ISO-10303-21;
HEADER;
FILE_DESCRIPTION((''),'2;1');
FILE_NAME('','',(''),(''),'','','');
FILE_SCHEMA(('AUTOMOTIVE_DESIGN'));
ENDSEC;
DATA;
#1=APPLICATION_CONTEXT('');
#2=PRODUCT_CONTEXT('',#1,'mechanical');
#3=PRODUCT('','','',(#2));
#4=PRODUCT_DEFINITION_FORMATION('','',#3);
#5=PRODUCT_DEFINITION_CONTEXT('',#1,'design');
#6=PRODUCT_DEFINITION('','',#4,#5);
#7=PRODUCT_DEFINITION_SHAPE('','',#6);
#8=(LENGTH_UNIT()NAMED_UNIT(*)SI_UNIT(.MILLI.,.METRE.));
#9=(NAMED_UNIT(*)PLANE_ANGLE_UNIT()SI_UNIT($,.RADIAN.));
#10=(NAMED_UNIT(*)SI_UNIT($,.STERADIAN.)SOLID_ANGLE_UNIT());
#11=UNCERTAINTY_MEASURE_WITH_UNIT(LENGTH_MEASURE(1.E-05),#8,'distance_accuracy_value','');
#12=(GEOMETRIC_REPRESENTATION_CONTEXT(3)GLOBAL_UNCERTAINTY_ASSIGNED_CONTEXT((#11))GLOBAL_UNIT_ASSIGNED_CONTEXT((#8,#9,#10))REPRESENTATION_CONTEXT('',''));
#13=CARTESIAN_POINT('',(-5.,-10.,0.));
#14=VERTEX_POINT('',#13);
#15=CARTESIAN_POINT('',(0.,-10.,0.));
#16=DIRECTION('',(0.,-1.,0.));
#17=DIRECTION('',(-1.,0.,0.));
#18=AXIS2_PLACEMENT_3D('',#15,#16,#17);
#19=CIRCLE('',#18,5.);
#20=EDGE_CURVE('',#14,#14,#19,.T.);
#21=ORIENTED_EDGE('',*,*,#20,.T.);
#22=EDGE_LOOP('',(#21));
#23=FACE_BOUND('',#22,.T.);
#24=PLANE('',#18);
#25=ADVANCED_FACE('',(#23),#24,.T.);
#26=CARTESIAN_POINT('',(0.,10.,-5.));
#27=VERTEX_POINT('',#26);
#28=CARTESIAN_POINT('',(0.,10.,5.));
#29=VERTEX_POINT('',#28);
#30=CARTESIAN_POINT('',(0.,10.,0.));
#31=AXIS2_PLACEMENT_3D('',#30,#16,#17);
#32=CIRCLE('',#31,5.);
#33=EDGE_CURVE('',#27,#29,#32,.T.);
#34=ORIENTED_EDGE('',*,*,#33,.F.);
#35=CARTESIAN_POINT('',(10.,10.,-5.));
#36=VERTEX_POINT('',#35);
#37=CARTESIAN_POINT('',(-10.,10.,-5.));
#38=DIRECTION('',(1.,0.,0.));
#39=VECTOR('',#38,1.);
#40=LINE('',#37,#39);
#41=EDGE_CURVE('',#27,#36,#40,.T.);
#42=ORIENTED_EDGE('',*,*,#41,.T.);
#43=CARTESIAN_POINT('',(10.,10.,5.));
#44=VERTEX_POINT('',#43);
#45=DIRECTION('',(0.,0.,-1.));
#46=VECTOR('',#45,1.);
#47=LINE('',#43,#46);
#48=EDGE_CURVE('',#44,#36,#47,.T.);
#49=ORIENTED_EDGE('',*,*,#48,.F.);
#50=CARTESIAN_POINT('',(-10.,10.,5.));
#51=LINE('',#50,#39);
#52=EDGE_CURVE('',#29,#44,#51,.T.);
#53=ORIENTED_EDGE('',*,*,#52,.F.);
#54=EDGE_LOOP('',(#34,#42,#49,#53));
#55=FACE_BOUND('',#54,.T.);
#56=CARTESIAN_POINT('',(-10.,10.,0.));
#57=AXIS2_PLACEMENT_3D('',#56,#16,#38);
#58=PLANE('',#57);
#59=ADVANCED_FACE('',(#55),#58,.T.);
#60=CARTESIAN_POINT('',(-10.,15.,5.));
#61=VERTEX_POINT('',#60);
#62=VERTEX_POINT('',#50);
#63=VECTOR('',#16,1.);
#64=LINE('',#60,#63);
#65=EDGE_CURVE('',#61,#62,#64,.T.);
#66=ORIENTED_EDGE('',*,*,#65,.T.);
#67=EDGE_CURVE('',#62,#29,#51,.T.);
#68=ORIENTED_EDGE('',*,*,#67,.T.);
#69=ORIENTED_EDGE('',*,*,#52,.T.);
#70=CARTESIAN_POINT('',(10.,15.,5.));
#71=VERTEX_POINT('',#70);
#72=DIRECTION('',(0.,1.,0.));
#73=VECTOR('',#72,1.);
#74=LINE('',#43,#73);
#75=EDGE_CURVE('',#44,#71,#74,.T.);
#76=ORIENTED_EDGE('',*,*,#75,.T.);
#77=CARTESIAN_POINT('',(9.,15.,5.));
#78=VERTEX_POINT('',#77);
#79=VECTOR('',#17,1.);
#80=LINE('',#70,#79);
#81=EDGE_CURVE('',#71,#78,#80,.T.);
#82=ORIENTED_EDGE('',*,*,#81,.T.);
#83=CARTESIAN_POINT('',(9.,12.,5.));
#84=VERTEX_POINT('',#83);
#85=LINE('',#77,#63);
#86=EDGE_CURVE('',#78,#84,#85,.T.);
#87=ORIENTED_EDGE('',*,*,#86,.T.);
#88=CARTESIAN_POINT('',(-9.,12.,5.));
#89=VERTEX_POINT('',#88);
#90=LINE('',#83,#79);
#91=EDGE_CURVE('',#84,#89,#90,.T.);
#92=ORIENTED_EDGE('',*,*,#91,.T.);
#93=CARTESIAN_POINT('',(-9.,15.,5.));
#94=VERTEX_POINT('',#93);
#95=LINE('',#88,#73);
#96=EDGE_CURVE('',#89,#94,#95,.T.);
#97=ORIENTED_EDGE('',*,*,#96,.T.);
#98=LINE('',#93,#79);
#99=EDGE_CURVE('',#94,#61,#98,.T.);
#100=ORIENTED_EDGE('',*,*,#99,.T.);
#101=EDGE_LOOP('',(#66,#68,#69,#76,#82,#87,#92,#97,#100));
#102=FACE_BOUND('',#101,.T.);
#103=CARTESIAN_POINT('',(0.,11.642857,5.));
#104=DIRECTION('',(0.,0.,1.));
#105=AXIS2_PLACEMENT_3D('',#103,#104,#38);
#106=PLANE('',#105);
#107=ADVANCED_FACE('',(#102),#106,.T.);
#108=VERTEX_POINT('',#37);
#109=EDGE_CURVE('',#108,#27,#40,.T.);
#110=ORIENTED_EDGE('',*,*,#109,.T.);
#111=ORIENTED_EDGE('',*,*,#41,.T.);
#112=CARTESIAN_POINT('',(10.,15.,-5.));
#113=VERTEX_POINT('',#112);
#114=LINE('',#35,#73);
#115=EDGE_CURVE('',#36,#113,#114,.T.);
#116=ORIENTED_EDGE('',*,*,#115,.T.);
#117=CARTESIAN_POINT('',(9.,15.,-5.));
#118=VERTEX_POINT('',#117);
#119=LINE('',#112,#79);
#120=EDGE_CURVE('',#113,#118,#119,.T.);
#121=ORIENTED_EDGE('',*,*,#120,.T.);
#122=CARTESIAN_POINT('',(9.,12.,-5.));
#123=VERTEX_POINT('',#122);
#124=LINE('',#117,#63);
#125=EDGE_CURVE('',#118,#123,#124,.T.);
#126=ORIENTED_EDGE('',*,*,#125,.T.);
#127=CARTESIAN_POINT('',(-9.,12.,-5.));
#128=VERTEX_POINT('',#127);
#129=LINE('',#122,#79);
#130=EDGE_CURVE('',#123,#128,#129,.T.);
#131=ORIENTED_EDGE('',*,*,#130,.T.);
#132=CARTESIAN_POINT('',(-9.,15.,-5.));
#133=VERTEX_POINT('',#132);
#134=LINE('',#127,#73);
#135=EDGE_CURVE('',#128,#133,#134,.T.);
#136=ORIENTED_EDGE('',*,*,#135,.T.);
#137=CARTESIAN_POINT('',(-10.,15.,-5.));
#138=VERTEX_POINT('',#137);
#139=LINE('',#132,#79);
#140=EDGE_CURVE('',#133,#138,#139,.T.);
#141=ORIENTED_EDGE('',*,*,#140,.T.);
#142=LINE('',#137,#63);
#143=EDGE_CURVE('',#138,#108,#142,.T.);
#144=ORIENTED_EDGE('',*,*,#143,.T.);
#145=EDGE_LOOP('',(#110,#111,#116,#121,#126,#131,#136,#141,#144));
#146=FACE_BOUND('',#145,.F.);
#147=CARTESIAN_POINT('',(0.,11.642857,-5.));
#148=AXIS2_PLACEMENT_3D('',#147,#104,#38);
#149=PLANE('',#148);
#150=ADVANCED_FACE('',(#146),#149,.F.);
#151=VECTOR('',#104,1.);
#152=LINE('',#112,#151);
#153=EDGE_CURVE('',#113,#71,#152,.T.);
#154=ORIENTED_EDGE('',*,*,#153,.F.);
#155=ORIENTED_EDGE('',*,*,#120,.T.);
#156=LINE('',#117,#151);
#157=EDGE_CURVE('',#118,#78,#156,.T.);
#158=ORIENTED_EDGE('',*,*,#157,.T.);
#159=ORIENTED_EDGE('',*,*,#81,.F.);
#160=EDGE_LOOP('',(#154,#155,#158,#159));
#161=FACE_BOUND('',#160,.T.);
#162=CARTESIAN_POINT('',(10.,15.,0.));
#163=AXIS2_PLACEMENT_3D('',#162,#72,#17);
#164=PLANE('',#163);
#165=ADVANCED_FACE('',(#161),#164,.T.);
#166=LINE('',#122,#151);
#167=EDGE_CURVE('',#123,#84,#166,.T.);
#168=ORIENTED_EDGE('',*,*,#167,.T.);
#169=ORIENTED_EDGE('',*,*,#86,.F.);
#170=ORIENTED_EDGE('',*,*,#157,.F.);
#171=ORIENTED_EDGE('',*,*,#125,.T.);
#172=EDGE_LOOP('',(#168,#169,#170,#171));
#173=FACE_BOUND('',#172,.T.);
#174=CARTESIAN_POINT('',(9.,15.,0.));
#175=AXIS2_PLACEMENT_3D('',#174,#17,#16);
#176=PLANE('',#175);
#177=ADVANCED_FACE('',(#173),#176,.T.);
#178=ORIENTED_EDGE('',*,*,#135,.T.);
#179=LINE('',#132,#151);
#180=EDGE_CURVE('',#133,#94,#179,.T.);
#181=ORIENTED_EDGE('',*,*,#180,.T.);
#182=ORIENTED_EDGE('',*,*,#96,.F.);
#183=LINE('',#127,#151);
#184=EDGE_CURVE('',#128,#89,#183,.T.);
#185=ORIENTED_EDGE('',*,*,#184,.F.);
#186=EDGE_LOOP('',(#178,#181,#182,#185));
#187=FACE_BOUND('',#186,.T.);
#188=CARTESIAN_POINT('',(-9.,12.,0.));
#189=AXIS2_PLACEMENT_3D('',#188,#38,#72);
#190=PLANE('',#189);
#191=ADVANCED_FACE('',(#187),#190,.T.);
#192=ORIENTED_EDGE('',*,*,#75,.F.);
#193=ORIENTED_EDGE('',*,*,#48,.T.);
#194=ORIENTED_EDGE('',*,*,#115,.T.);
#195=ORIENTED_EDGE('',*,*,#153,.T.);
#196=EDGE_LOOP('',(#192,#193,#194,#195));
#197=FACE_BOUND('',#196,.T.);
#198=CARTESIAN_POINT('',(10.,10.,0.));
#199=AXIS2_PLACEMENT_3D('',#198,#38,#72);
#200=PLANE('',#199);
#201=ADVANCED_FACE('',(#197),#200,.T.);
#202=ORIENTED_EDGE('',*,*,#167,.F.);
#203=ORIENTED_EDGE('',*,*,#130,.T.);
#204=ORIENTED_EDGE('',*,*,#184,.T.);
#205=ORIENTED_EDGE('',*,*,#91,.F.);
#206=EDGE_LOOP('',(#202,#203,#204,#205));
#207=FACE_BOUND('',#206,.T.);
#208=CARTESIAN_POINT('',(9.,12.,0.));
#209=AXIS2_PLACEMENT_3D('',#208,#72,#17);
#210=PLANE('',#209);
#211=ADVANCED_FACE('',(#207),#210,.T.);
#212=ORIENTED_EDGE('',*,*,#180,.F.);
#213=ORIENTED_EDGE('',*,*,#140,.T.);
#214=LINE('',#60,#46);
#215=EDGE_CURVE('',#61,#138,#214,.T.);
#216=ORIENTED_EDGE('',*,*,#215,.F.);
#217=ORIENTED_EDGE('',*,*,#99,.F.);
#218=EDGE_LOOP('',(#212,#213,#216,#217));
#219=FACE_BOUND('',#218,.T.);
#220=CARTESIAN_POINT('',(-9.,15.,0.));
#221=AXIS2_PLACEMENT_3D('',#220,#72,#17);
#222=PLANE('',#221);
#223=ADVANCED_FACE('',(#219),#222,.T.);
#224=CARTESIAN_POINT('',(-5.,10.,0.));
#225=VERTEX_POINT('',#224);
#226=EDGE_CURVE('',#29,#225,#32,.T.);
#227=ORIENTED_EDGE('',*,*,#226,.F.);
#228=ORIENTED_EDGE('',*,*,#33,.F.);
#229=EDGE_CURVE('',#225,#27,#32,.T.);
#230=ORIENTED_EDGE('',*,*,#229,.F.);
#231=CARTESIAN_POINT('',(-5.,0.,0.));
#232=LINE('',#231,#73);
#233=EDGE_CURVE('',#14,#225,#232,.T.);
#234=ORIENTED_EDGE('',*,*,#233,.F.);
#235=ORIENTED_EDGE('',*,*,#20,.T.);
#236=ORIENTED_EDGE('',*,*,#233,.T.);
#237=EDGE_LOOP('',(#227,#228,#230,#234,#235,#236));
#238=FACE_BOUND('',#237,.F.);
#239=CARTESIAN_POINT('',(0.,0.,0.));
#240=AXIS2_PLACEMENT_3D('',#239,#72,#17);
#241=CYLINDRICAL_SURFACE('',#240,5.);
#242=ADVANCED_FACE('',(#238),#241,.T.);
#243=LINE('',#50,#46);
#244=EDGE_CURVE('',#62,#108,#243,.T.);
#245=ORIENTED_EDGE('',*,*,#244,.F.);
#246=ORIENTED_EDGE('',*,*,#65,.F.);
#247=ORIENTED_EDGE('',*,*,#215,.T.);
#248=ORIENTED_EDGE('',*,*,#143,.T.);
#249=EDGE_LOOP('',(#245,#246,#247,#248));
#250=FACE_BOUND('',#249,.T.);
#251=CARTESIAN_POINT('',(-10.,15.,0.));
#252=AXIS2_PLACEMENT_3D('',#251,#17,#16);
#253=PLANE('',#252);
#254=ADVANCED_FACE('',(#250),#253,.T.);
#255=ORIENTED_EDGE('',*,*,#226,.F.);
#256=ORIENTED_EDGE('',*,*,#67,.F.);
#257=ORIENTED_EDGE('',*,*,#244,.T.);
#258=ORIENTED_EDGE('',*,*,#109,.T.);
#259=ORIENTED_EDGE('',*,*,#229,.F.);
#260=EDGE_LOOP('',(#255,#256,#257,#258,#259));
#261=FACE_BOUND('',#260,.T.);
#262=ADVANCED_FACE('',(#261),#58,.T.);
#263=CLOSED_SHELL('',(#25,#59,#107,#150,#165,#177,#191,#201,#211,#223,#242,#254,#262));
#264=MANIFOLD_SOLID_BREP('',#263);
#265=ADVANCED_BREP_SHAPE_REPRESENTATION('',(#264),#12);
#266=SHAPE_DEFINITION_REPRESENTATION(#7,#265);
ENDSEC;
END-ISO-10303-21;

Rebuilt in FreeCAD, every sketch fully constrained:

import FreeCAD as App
import Part
import Sketcher
from FreeCAD import Vector

doc = App.newDocument("Part")
params = doc.addObject("Spreadsheet::Sheet", "Params")
for row, (alias, value) in enumerate([
    ("sketch1_width", "1 mm"),
    ("sketch1_width2", "18 mm"),
    ("sketch1_height", "5 mm"),
    ("sketch1_height2", "3 mm"),
    ("pad1_length", "10 mm"),
    ("sketch2_width", "5 mm"),
    ("sketch2_height", "20 mm"),
    ("revolution_angle", "360 deg"),
], start=1):
    params.set(f"A{row}", alias)
    params.set(f"B{row}", "=" + value)
    params.setAlias(f"B{row}", alias)

body = doc.addObject("PartDesign::Body", "Body")

# Sketch on XY plane
sketch1 = body.newObject("Sketcher::SketchObject", "Sketch")
sketch1.AttachmentSupport = (doc.getObject("XY_Plane"), [""])
sketch1.MapMode = "FlatFace"
sketch1.addGeometry([
    Part.LineSegment(Vector(10, 10, 0), Vector(10, 15, 0)),  # 0
    Part.LineSegment(Vector(10, 15, 0), Vector(9, 15, 0)),  # 1
    Part.LineSegment(Vector(9, 15, 0), Vector(9, 12, 0)),  # 2
    Part.LineSegment(Vector(9, 12, 0), Vector(-9, 12, 0)),  # 3
    Part.LineSegment(Vector(-9, 12, 0), Vector(-9, 15, 0)),  # 4
    Part.LineSegment(Vector(-9, 15, 0), Vector(-10, 15, 0)),  # 5
    Part.LineSegment(Vector(-10, 15, 0), Vector(-10, 10, 0)),  # 6
    Part.LineSegment(Vector(-10, 10, 0), Vector(10, 10, 0)),  # 7
], False)
sketch1.addConstraint([
    Sketcher.Constraint("Coincident", 0, 2, 1, 1),
    Sketcher.Constraint("Coincident", 1, 2, 2, 1),
    Sketcher.Constraint("Coincident", 2, 2, 3, 1),
    Sketcher.Constraint("Coincident", 3, 2, 4, 1),
    Sketcher.Constraint("Coincident", 4, 2, 5, 1),
    Sketcher.Constraint("Coincident", 5, 2, 6, 1),
    Sketcher.Constraint("Coincident", 6, 2, 7, 1),
    Sketcher.Constraint("Coincident", 7, 2, 0, 1),
    Sketcher.Constraint("Vertical", 0),
    Sketcher.Constraint("Horizontal", 1),
    Sketcher.Constraint("Vertical", 2),
    Sketcher.Constraint("Horizontal", 3),
    Sketcher.Constraint("Vertical", 4),
    Sketcher.Constraint("Horizontal", 5),
    Sketcher.Constraint("Vertical", 6),
    Sketcher.Constraint("Horizontal", 7),
    Sketcher.Constraint("Symmetric", 1, 2, 4, 2, -2),
    Sketcher.Constraint("Equal", 1, 5),
    Sketcher.Constraint("DistanceX", 1, 2, 1, 1, 1.0),
    Sketcher.Constraint("DistanceX", 3, 2, 3, 1, 18.0),
    Sketcher.Constraint("DistanceY", 0, 1, 0, 2, 5.0),
    Sketcher.Constraint("DistanceY", 2, 2, 2, 1, 3.0),
    Sketcher.Constraint("DistanceY", -1, 1, 0, 2, 15.0),
])
sketch1.setExpression("Constraints[18]", "Params.sketch1_width")
sketch1.setExpression("Constraints[19]", "Params.sketch1_width2")
sketch1.setExpression("Constraints[20]", "Params.sketch1_height")
sketch1.setExpression("Constraints[21]", "Params.sketch1_height2")
pad1 = body.newObject("PartDesign::Pad", "Pad")
pad1.Profile = sketch1
pad1.setExpression("Length", "Params.pad1_length")
pad1.Midplane = True

# Sketch on XY plane
sketch2 = body.newObject("Sketcher::SketchObject", "Sketch001")
sketch2.AttachmentSupport = (doc.getObject("XY_Plane"), [""])
sketch2.MapMode = "FlatFace"
sketch2.addGeometry([
    Part.LineSegment(Vector(-5, 10, 0), Vector(-5, -10, 0)),
    Part.LineSegment(Vector(-5, -10, 0), Vector(0, -10, 0)),
    Part.LineSegment(Vector(0, -10, 0), Vector(0, 10, 0)),
    Part.LineSegment(Vector(0, 10, 0), Vector(-5, 10, 0)),
], False)
sketch2.addConstraint([
    Sketcher.Constraint("Coincident", 0, 2, 1, 1),
    Sketcher.Constraint("Coincident", 1, 2, 2, 1),
    Sketcher.Constraint("Coincident", 2, 2, 3, 1),
    Sketcher.Constraint("Coincident", 3, 2, 0, 1),
    Sketcher.Constraint("Vertical", 0),
    Sketcher.Constraint("Horizontal", 1),
    Sketcher.Constraint("Vertical", 2),
    Sketcher.Constraint("Horizontal", 3),
    Sketcher.Constraint("Symmetric", 1, 2, 2, 2, -1, 1),
    Sketcher.Constraint("DistanceX", 1, 1, 1, 2, 5.0),
    Sketcher.Constraint("DistanceY", 0, 2, 0, 1, 20.0),
])
sketch2.setExpression("Constraints[9]", "Params.sketch2_width")
sketch2.setExpression("Constraints[10]", "Params.sketch2_height")
revolution = body.newObject("PartDesign::Revolution", "Revolution")
revolution.Profile = sketch2
revolution.ReferenceAxis = (sketch2, ["V_Axis"])
revolution.setExpression("Angle", "Params.revolution_angle")

doc.recompute()
